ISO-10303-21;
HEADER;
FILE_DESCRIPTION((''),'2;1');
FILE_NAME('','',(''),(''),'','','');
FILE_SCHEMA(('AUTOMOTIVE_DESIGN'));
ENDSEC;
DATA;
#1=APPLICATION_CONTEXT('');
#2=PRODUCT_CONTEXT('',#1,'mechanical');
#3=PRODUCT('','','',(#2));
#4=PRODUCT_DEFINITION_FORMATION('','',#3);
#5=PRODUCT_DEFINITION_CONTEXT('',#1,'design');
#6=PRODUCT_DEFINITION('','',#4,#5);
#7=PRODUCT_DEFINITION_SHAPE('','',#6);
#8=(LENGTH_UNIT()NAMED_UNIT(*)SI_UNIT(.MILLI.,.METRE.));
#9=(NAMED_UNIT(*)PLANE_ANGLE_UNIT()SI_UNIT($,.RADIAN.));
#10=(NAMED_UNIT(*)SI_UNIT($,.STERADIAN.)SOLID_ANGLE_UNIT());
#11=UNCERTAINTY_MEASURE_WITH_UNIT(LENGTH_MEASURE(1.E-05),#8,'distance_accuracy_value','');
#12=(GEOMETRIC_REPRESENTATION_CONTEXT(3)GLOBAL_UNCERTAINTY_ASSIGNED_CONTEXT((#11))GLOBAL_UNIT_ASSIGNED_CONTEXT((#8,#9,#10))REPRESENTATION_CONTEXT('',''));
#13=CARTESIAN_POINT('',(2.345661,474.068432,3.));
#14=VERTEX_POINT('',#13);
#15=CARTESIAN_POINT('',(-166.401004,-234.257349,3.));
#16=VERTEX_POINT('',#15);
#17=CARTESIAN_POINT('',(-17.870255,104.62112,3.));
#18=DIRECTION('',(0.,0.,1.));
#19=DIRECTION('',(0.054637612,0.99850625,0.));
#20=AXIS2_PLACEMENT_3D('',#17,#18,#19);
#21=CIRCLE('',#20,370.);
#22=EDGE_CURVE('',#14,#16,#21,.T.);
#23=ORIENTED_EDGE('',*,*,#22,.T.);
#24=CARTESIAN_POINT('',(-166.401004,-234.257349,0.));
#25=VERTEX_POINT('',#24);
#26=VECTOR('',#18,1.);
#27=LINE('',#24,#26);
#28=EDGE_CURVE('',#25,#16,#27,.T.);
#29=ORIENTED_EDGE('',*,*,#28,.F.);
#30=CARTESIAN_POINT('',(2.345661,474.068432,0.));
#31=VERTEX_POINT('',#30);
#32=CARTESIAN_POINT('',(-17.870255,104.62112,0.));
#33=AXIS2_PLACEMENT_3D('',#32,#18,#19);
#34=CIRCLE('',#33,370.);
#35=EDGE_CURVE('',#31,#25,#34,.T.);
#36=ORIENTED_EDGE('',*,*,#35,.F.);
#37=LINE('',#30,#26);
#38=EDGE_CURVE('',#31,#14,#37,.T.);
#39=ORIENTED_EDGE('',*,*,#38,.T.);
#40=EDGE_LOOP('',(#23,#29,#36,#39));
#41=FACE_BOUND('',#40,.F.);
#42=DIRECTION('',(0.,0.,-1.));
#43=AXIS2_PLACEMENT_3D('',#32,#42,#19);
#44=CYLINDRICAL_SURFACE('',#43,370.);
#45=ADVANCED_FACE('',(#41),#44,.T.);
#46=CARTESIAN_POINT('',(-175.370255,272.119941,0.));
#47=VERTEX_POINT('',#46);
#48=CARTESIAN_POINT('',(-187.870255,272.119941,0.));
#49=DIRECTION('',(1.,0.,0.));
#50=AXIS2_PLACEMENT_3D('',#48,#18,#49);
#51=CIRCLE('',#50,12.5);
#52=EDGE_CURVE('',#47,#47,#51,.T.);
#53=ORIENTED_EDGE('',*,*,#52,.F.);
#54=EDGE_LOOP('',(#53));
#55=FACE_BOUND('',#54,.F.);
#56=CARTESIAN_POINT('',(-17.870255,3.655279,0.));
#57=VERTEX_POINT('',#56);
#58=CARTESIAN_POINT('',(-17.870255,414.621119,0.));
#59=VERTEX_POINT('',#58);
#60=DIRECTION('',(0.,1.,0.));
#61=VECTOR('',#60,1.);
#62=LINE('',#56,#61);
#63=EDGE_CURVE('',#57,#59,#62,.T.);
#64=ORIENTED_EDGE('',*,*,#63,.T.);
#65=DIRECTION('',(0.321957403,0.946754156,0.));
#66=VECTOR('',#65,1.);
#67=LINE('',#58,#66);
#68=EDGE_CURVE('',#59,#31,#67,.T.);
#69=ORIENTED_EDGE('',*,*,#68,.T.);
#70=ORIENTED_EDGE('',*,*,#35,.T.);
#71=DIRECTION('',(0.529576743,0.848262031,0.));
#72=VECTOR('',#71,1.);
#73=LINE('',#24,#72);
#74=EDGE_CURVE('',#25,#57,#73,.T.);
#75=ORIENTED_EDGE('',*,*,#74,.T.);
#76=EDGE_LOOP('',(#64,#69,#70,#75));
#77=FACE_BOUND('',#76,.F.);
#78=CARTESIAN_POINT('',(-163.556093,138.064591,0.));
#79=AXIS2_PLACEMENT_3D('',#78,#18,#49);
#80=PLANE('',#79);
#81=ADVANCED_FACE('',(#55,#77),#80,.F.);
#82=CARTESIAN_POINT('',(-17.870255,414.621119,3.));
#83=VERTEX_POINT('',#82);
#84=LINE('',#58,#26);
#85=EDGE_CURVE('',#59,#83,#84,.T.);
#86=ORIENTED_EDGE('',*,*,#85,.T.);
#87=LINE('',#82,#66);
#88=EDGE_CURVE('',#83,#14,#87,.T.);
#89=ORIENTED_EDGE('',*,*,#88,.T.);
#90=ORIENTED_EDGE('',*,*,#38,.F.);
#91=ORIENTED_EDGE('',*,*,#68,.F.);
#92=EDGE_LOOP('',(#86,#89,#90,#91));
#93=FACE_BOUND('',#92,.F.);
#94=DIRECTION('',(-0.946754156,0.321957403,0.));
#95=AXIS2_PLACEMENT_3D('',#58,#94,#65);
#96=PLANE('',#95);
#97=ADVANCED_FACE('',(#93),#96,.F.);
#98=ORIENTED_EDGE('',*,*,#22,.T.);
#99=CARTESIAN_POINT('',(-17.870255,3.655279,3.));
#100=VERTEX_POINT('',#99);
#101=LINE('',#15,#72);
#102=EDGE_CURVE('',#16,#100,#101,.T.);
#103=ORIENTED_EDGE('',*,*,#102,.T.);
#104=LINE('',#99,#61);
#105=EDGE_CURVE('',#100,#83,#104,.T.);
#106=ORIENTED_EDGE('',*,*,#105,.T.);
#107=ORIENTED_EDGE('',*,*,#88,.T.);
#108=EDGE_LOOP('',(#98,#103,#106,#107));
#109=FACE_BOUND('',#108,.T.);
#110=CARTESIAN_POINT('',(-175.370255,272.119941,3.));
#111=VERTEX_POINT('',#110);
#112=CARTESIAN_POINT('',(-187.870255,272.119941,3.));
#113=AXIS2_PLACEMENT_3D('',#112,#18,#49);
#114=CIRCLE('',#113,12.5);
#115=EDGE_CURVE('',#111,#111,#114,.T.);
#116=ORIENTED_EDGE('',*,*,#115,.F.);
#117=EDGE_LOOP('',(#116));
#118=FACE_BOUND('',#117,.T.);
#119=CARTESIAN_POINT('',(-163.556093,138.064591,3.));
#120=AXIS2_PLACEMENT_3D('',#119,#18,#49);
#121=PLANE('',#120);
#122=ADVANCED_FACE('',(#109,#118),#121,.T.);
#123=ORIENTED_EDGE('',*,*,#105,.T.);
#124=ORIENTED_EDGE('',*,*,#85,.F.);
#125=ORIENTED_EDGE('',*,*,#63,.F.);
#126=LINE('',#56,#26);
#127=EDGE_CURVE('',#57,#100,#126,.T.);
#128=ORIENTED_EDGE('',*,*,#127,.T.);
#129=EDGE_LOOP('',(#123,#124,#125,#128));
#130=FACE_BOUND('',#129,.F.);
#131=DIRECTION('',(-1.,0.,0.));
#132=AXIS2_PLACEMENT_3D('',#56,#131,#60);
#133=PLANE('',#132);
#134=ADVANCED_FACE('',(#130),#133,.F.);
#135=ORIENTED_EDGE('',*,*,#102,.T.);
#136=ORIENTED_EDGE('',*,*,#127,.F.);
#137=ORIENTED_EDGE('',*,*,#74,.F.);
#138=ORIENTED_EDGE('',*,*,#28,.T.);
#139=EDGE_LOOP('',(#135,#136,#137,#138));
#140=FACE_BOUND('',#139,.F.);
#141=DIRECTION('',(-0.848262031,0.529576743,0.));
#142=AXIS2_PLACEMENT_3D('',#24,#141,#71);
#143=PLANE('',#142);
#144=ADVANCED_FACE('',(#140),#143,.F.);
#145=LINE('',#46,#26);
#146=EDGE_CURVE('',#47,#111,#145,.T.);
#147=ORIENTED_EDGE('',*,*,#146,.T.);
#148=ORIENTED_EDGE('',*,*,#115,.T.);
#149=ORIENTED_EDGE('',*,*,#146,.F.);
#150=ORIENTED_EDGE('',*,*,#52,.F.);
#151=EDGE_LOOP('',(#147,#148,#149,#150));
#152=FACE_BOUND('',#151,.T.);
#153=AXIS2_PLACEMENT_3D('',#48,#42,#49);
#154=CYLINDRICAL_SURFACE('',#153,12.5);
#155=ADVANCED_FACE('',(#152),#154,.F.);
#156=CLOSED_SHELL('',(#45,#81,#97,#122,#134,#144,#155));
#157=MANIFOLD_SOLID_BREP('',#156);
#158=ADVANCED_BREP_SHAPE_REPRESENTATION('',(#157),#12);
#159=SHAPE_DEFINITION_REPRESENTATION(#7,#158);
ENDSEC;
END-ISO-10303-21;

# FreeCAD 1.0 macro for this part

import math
import FreeCAD as App
import Part
import Sketcher

V = App.Vector
Q = App.Units.Quantity

doc = App.newDocument("Part")
body = doc.addObject("PartDesign::Body", "Body")

# Sketch on XY plane
sketch1 = body.newObject("Sketcher::SketchObject", "Sketch")
sketch1.AttachmentSupport = (doc.getObject("XY_Plane"), [""])
sketch1.MapMode = "FlatFace"
sketch1.addGeometry(Part.LineSegment(V(-18, 415, 0), V(2, 474, 0)), False)
sketch1.addGeometry(Part.ArcOfCircle(Part.Circle(V(-18, 105, 0), V(0, 0, 1), 370), math.radians(87), math.radians(246)), False)
sketch1.addGeometry(Part.LineSegment(V(-166, -234, 0), V(-18, 4, 0)), False)
sketch1.addGeometry(Part.LineSegment(V(-18, 4, 0), V(-18, 415, 0)), False)
sketch1.addGeometry(Part.Circle(V(-188, 272, 0), V(0, 0, 1), 12), False)
sketch1.addConstraint(Sketcher.Constraint("Coincident", 0, 2, 1, 1))
sketch1.addConstraint(Sketcher.Constraint("Coincident", 1, 2, 2, 1))
sketch1.addConstraint(Sketcher.Constraint("Coincident", 2, 2, 3, 1))
sketch1.addConstraint(Sketcher.Constraint("Coincident", 3, 2, 0, 1))
sketch1.addConstraint(Sketcher.Constraint("Vertical", 3))
sketch1.addConstraint(Sketcher.Constraint("Vertical", 1, 3, 2, 2))
sketch1.addConstraint(Sketcher.Constraint("Diameter", 4, Q("25 mm")))
sketch1.addConstraint(Sketcher.Constraint("Radius", 1, Q("370 mm")))
sketch1.addConstraint(Sketcher.Constraint("DistanceX", 4, 3, 1, 3, Q("170 mm")))
sketch1.addConstraint(Sketcher.Constraint("DistanceY", 1, 3, 3, 2, Q("309.999999 mm")))
sketch1.addConstraint(Sketcher.Constraint("DistanceY", 3, 1, 3, 2, Q("410.96584 mm")))
sketch1.addConstraint(Sketcher.Constraint("Distance", 2, Q("280.470679 mm")))
sketch1.addConstraint(Sketcher.Constraint("DistanceY", -1, 1, 1, 3, Q("104.62112 mm")))
sketch1.addConstraint(Sketcher.Constraint("DistanceY", -1, 1, 4, 3, Q("272.119941 mm")))
sketch1.addConstraint(Sketcher.Constraint("DistanceX", -1, 1, 0, 2, Q("2.345661 mm")))
sketch1.addConstraint(Sketcher.Constraint("DistanceY", -1, 1, 0, 2, Q("474.068432 mm")))
pad1 = body.newObject("PartDesign::Pad", "Pad")
pad1.Profile = sketch1
pad1.Length = 3

doc.recompute()
